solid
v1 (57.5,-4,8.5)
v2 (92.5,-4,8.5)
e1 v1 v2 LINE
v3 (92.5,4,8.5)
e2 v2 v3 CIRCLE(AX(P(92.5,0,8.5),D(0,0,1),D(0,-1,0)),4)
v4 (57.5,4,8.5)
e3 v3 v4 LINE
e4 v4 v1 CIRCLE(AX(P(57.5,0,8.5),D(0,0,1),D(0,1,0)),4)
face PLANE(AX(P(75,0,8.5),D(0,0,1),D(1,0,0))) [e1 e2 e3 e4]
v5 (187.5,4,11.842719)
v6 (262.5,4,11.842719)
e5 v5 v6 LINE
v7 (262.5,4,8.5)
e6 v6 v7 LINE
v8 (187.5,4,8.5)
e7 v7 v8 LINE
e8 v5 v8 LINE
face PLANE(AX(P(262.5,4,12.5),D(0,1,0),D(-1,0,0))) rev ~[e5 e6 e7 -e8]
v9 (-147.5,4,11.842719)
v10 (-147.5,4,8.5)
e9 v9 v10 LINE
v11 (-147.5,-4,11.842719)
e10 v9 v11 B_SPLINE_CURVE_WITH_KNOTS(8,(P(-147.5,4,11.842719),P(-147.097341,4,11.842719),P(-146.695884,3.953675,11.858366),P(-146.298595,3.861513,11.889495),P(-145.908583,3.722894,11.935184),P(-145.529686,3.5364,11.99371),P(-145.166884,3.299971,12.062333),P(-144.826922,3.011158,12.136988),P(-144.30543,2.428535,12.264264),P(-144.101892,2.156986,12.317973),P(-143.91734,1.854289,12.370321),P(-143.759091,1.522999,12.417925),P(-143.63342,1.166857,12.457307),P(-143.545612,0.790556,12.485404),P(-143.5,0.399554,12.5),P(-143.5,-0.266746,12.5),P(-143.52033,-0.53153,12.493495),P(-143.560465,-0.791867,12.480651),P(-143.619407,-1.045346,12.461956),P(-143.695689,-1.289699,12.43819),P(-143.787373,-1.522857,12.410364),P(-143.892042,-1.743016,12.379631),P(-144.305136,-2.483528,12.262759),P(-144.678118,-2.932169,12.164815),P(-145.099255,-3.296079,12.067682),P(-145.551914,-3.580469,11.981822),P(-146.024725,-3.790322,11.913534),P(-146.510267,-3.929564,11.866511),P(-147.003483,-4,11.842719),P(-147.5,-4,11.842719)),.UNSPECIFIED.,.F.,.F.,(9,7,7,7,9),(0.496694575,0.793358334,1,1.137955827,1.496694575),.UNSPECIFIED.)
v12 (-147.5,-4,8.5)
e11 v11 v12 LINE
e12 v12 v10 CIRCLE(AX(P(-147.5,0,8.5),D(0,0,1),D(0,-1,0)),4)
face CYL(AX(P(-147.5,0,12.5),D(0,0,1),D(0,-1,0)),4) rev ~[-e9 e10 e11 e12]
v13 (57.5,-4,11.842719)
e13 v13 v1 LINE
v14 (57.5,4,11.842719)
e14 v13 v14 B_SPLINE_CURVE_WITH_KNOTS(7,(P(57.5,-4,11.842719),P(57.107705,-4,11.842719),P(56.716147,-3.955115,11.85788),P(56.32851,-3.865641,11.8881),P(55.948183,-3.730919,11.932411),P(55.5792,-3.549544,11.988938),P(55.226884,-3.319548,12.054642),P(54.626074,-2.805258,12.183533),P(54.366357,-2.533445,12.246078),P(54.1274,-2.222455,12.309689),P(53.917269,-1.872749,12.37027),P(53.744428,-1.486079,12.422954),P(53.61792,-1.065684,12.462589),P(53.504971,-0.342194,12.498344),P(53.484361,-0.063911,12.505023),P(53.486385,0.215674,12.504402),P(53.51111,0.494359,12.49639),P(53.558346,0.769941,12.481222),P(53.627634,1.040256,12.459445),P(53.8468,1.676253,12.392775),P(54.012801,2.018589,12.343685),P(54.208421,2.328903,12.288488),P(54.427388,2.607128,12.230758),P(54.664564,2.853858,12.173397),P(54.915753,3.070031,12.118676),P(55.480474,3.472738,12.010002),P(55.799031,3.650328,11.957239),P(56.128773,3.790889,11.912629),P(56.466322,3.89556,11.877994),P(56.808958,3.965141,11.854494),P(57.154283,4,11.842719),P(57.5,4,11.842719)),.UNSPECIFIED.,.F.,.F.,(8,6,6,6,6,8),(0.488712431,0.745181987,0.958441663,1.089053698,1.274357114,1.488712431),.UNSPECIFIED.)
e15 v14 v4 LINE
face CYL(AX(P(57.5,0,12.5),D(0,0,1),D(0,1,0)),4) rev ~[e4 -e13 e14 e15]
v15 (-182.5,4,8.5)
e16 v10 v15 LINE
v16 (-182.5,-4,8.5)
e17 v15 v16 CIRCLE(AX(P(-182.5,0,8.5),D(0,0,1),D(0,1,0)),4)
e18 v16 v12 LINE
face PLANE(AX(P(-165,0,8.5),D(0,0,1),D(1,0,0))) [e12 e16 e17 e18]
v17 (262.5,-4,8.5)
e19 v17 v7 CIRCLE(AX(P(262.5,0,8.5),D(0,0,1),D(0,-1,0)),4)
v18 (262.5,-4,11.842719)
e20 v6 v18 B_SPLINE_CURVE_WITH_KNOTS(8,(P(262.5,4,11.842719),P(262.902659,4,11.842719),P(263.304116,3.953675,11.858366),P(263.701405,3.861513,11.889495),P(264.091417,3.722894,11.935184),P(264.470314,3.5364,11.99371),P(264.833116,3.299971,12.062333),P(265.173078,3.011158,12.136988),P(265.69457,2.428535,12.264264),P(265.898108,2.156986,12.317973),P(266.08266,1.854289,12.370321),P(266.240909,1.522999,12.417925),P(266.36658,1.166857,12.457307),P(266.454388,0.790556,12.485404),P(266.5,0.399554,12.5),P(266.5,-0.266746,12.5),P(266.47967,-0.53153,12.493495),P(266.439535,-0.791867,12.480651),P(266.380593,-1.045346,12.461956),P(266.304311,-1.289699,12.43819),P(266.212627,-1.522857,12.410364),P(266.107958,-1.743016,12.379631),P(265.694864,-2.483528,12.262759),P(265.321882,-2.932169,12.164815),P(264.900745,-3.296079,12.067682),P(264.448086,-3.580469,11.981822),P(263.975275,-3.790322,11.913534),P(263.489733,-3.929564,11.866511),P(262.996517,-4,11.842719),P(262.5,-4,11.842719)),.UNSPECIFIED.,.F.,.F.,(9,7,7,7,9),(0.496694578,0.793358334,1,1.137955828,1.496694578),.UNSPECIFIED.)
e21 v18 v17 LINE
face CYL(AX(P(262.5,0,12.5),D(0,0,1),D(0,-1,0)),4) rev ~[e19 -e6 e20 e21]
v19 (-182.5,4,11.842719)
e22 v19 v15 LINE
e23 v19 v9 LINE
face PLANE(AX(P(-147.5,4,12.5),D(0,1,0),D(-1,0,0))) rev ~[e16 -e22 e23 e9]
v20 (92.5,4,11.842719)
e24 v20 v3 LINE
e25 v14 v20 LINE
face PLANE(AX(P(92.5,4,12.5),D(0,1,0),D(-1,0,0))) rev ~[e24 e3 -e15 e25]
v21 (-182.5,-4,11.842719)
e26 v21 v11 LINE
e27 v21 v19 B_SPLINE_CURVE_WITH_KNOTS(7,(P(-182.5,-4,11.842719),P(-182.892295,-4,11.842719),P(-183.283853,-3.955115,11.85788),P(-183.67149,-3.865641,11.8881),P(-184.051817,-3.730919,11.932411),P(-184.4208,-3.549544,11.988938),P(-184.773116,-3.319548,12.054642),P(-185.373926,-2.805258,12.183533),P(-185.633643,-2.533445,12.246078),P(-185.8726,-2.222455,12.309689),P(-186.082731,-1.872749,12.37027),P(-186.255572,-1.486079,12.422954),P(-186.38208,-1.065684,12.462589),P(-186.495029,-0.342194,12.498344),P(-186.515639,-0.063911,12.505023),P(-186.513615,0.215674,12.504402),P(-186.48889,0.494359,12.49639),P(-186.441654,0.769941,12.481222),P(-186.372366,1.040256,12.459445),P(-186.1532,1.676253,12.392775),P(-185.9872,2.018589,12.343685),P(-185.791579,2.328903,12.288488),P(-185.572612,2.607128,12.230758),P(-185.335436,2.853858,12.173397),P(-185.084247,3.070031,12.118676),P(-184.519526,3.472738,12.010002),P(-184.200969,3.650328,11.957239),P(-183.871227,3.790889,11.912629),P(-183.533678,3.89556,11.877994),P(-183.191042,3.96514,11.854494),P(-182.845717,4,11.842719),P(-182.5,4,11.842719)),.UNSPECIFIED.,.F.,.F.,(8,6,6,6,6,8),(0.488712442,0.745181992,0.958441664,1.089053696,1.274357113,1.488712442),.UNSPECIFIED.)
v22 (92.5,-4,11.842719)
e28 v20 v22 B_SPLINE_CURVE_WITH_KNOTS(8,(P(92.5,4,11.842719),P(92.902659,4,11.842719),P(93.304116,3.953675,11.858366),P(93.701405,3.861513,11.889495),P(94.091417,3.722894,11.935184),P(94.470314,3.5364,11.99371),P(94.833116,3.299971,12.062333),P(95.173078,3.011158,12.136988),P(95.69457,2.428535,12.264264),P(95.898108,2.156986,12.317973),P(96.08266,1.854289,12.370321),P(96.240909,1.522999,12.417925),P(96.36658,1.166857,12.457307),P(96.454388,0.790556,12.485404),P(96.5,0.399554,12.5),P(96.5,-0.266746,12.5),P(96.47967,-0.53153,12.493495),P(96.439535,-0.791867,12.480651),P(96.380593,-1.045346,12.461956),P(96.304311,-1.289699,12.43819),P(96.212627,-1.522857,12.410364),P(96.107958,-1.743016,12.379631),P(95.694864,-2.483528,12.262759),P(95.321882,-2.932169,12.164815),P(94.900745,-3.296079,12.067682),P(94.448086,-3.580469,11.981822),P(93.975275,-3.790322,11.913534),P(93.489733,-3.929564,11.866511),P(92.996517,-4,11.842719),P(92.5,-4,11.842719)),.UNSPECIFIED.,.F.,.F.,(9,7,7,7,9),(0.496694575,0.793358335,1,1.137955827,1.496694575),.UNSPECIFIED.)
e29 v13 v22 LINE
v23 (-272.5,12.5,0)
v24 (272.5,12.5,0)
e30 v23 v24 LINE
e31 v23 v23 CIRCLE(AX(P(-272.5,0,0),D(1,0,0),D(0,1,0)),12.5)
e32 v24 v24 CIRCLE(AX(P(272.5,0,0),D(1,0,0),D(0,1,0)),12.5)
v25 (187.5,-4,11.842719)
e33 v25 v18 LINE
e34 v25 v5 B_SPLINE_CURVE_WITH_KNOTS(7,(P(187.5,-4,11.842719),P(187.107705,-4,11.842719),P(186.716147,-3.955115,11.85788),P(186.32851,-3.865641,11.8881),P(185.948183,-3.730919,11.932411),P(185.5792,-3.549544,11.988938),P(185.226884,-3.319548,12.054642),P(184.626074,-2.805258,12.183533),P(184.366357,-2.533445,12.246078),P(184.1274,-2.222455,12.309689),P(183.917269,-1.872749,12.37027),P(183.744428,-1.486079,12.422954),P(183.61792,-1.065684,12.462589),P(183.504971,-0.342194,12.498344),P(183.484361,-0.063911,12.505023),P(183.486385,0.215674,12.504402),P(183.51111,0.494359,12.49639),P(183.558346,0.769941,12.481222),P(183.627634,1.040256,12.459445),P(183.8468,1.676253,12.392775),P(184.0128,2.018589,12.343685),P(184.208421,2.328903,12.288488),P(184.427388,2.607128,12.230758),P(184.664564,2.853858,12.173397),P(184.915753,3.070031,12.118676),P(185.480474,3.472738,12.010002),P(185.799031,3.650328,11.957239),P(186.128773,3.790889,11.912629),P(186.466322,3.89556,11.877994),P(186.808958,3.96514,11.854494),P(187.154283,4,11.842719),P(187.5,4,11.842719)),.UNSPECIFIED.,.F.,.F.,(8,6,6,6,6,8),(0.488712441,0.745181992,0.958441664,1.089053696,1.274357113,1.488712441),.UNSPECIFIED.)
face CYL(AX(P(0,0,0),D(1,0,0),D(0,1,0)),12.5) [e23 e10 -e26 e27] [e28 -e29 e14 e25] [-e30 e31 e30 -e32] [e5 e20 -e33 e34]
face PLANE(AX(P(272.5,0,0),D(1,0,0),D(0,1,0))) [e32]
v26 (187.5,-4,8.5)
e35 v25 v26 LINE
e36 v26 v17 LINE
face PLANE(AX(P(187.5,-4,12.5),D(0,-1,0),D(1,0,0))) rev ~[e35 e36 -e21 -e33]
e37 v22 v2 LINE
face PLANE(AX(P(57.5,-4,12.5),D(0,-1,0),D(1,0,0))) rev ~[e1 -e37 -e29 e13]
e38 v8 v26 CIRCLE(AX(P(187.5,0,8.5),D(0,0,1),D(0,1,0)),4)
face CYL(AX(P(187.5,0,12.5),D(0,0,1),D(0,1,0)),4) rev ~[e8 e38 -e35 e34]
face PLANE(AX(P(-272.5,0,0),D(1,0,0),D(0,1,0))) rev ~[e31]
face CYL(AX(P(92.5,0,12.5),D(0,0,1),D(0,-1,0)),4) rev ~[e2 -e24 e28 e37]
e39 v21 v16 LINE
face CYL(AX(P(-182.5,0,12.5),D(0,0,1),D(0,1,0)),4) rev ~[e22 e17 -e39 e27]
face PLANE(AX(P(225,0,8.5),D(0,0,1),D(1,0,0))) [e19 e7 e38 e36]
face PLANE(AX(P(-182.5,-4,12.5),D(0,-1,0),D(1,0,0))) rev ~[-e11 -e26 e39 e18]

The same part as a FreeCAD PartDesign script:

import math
import FreeCAD as App
import Part
import Sketcher

V = App.Vector

doc = App.newDocument("Part")
body = doc.addObject("PartDesign::Body", "Body")

sketch1 = doc.addObject("Sketcher::SketchObject", "Sketch")
body.addObject(sketch1)
sketch1.AttachmentSupport = (doc.YZ_Plane, [""])
sketch1.MapMode = "FlatFace"
sketch1.addGeometry(Part.Circle(V(0, 0, 0), V(0, 0, 1), 12), False)
sketch1.addConstraint(Sketcher.Constraint("Coincident", 0, 3, -1, 1))
sketch1.addConstraint(Sketcher.Constraint("Diameter", 0, 25.0))
pad1 = doc.addObject("PartDesign::Pad", "Pad")
body.addObject(pad1)
pad1.Profile = sketch1
pad1.Length = 545
pad1.Midplane = True

sketch2 = doc.addObject("Sketcher::SketchObject", "Sketch001")
body.addObject(sketch2)
sketch2.AttachmentSupport = (doc.XY_Plane, [""])
sketch2.MapMode = "FlatFace"
sketch2.AttachmentOffset = App.Placement(V(0, 0, 12.5), App.Rotation())
sketch2.addGeometry(Part.ArcOfCircle(Part.Circle(V(-182.5, 0, 0), V(0, 0, 1), 4), math.radians(90), math.radians(270)), False)
sketch2.addGeometry(Part.LineSegment(V(-182.5, -4, 0), V(-147.5, -4, 0)), False)
sketch2.addGeometry(Part.ArcOfCircle(Part.Circle(V(-147.5, 0, 0), V(0, 0, 1), 4), math.radians(-90), math.radians(90)), False)
sketch2.addGeometry(Part.LineSegment(V(-147.5, 4, 0), V(-182.5, 4, 0)), False)
sketch2.addGeometry(Part.ArcOfCircle(Part.Circle(V(57.5, 0, 0), V(0, 0, 1), 4), math.radians(90), math.radians(270)), False)
sketch2.addGeometry(Part.LineSegment(V(57.5, -4, 0), V(92.5, -4, 0)), False)
sketch2.addGeometry(Part.ArcOfCircle(Part.Circle(V(92.5, 0, 0), V(0, 0, 1), 4), math.radians(-90), math.radians(90)), False)
sketch2.addGeometry(Part.LineSegment(V(92.5, 4, 0), V(57.5, 4, 0)), False)
sketch2.addGeometry(Part.ArcOfCircle(Part.Circle(V(187.5, 0, 0), V(0, 0, 1), 4), math.radians(90), math.radians(270)), False)
sketch2.addGeometry(Part.LineSegment(V(187.5, -4, 0), V(262.5, -4, 0)), False)
sketch2.addGeometry(Part.ArcOfCircle(Part.Circle(V(262.5, 0, 0), V(0, 0, 1), 4), math.radians(-90), math.radians(90)), False)
sketch2.addGeometry(Part.LineSegment(V(262.5, 4, 0), V(187.5, 4, 0)), False)
sketch2.addConstraint(Sketcher.Constraint("Tangent", 0, 2, 1, 1))
sketch2.addConstraint(Sketcher.Constraint("Tangent", 1, 2, 2, 1))
sketch2.addConstraint(Sketcher.Constraint("Tangent", 2, 2, 3, 1))
sketch2.addConstraint(Sketcher.Constraint("Tangent", 3, 2, 0, 1))
sketch2.addConstraint(Sketcher.Constraint("Tangent", 4, 2, 5, 1))
sketch2.addConstraint(Sketcher.Constraint("Tangent", 5, 2, 6, 1))
sketch2.addConstraint(Sketcher.Constraint("Tangent", 6, 2, 7, 1))
sketch2.addConstraint(Sketcher.Constraint("Tangent", 7, 2, 4, 1))
sketch2.addConstraint(Sketcher.Constraint("Tangent", 8, 2, 9, 1))
sketch2.addConstraint(Sketcher.Constraint("Tangent", 9, 2, 10, 1))
sketch2.addConstraint(Sketcher.Constraint("Tangent", 10, 2, 11, 1))
sketch2.addConstraint(Sketcher.Constraint("Tangent", 11, 2, 8, 1))
sketch2.addConstraint(Sketcher.Constraint("Horizontal", 1))
sketch2.addConstraint(Sketcher.Constraint("Horizontal", 3))
sketch2.addConstraint(Sketcher.Constraint("Horizontal", 5))
sketch2.addConstraint(Sketcher.Constraint("Horizontal", 7))
sketch2.addConstraint(Sketcher.Constraint("Horizontal", 9))
sketch2.addConstraint(Sketcher.Constraint("Horizontal", 11))
sketch2.addConstraint(Sketcher.Constraint("Equal", 2, 4))
sketch2.addConstraint(Sketcher.Constraint("Equal", 6, 8))
sketch2.addConstraint(Sketcher.Constraint("PointOnObject", 0, 3, -1))
sketch2.addConstraint(Sketcher.Constraint("PointOnObject", 4, 3, -1))
sketch2.addConstraint(Sketcher.Constraint("PointOnObject", 8, 3, -1))
sketch2.addConstraint(Sketcher.Constraint("Equal", 3, 5))
sketch2.addConstraint(Sketcher.Constraint("Radius", 0, 4.0))
sketch2.addConstraint(Sketcher.Constraint("DistanceX", 1, 1, 1, 2, 35.0))
sketch2.addConstraint(Sketcher.Constraint("DistanceX", 9, 1, 9, 2, 75.0))
sketch2.addConstraint(Sketcher.Constraint("DistanceX", 2, 3, 4, 3, 205.0))
sketch2.addConstraint(Sketcher.Constraint("DistanceX", 6, 3, 8, 3, 95.0))
sketch2.addConstraint(Sketcher.Constraint("DistanceX", 0, 3, -1, 1, 182.5))
pocket1 = doc.addObject("PartDesign::Pocket", "Pocket")
body.addObject(pocket1)
pocket1.Profile = sketch2
pocket1.Length = 4

doc.recompute()
